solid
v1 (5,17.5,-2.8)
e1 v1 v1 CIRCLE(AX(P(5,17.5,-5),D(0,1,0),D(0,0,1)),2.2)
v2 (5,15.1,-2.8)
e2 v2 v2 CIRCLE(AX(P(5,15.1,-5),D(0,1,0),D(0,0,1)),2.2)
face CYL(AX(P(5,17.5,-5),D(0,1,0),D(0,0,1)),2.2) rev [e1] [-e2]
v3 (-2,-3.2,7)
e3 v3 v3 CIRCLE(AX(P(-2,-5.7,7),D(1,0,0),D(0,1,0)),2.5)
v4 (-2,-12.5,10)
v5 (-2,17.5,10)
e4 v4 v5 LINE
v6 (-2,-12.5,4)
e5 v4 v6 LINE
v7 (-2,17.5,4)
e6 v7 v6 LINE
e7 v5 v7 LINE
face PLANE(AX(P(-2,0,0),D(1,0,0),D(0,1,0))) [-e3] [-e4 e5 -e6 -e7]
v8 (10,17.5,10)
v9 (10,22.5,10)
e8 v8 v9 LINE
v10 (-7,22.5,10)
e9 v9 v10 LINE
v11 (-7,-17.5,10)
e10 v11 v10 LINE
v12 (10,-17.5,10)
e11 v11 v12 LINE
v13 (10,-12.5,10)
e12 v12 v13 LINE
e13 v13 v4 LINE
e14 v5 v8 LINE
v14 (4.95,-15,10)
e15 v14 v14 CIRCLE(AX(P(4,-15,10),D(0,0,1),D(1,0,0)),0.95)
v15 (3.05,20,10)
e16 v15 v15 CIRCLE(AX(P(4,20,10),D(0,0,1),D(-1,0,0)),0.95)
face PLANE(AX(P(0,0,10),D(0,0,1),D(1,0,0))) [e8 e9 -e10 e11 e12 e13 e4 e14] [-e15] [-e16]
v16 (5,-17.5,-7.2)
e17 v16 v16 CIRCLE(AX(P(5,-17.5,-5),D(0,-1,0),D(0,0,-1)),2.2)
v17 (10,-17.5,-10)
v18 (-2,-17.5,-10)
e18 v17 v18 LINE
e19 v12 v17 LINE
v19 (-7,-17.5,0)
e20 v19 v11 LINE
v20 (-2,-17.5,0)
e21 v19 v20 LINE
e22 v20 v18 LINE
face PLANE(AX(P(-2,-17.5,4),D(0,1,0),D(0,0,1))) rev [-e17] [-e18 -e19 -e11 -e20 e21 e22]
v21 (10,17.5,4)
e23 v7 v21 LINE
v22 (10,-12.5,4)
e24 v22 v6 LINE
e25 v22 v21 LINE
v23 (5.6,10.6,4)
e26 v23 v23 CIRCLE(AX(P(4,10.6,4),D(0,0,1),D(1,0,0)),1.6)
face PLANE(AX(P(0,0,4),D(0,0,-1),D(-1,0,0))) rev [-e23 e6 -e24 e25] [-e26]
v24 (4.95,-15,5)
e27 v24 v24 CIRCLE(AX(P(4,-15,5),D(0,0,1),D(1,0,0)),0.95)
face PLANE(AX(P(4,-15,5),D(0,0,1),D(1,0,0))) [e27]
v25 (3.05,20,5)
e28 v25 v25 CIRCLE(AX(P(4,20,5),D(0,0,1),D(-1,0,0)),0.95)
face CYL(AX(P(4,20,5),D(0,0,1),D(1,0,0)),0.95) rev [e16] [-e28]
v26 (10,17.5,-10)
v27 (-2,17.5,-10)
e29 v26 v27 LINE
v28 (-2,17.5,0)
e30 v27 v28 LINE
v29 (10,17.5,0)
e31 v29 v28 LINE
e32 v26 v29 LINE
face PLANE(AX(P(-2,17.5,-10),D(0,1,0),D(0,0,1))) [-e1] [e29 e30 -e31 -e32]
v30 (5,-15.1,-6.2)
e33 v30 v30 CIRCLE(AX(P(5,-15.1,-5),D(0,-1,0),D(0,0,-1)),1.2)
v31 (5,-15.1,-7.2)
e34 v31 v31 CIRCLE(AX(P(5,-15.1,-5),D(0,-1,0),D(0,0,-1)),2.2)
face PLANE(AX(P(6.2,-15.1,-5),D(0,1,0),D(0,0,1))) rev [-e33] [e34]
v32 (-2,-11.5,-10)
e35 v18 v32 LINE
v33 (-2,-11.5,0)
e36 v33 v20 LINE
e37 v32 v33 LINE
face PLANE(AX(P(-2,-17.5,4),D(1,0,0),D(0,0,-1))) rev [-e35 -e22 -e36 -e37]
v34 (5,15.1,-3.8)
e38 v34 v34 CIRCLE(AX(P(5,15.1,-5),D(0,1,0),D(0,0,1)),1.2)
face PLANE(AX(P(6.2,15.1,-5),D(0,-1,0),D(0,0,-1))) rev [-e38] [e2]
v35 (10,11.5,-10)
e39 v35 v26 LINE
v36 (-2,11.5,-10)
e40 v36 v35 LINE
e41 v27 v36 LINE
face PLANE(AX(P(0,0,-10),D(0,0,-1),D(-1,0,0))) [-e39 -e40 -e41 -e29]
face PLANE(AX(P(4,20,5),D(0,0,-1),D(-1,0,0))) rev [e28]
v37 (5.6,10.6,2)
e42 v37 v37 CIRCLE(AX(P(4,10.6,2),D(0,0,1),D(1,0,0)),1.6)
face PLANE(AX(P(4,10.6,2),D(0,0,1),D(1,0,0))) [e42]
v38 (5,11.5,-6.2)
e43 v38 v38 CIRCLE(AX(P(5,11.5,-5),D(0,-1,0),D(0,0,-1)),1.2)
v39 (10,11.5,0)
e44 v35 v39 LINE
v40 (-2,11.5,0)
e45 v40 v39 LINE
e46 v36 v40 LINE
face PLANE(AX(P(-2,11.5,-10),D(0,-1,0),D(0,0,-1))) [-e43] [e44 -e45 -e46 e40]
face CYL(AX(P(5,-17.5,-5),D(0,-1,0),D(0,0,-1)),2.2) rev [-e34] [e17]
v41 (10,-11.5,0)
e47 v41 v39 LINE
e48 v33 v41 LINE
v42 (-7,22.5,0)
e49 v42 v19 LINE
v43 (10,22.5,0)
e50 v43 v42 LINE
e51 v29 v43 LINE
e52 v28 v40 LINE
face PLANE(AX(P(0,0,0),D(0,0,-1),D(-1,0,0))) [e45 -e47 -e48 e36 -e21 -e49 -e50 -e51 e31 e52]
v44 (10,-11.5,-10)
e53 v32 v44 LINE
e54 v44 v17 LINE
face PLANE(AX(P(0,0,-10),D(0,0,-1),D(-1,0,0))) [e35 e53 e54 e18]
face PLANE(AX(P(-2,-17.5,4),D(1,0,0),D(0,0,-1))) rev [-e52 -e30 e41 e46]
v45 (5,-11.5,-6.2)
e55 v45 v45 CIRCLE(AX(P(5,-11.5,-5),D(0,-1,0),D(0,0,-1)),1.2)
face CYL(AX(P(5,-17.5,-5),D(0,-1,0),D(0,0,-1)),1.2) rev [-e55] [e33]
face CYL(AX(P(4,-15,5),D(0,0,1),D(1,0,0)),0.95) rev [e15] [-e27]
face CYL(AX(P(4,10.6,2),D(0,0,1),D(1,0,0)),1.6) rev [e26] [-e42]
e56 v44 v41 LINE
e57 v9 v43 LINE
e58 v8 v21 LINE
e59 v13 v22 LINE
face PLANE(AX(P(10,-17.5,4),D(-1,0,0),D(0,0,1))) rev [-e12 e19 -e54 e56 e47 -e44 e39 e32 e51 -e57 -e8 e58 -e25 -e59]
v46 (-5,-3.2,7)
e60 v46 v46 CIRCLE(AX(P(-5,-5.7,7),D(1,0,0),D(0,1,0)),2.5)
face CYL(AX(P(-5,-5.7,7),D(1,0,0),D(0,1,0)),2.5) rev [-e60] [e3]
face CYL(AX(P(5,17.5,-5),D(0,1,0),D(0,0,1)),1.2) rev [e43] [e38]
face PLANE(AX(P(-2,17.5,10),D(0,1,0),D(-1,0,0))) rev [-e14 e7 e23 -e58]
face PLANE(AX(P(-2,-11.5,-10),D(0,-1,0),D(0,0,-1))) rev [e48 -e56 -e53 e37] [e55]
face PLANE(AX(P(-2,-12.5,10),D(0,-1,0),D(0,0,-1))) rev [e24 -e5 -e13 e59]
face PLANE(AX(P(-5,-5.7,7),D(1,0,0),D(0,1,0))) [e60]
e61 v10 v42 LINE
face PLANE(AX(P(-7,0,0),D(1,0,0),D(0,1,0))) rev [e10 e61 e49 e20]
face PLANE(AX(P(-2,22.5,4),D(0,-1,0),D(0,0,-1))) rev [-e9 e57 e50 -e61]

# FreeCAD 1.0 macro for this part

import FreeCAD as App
import Part
import Sketcher
from FreeCAD import Vector


def add_polygon(sketch, points):
    """Adds a closed chain of lines whose ends are joined by coincident constraints."""
    first, n = sketch.GeometryCount, len(points)
    for a, b in zip(points, points[1:] + points[:1]):
        sketch.addGeometry(Part.LineSegment(App.Vector(*a, 0), App.Vector(*b, 0)), False)
    for i in range(n):
        sketch.addConstraint(Sketcher.Constraint("Coincident", first + i, 2, first + (i + 1) % n, 1))

doc = App.newDocument("Part")
body = doc.addObject("PartDesign::Body", "Body")

# Sketch on XY plane
sketch1 = body.newObject("Sketcher::SketchObject", "Sketch")
sketch1.AttachmentSupport = (doc.getObject("XY_Plane"), [""])
sketch1.MapMode = "FlatFace"
add_polygon(sketch1, [(-2, 22), (-2, -18), (10, -18), (10, 22)])  # lines 0-3
sketch1.addConstraint([
    Sketcher.Constraint("Vertical", 0),
    Sketcher.Constraint("Horizontal", 1),
    Sketcher.Constraint("Vertical", 2),
    Sketcher.Constraint("Horizontal", 3),
    Sketcher.Constraint("DistanceX", 1, 1, 1, 2, 12.0),
    Sketcher.Constraint("DistanceY", 0, 2, 0, 1, 40.0),
    Sketcher.Constraint("DistanceX", 0, 2, -1, 1, 2.0),
    Sketcher.Constraint("DistanceY", 0, 2, -1, 1, 17.5),
])
pad1 = body.newObject("PartDesign::Pad", "Pad")
pad1.Profile = sketch1
pad1.Length = 4

# Sketch on XY plane
sketch2 = body.newObject("Sketcher::SketchObject", "Sketch001")
sketch2.AttachmentSupport = (doc.getObject("XY_Plane"), [""])
sketch2.MapMode = "FlatFace"
add_polygon(sketch2, [(10, -12), (10, -18), (-2, -18), (-2, -12)])  # lines 0-3
sketch2.addConstraint([
    Sketcher.Constraint("Vertical", 0),
    Sketcher.Constraint("Horizontal", 1),
    Sketcher.Constraint("Vertical", 2),
    Sketcher.Constraint("Horizontal", 3),
    Sketcher.Constraint("DistanceX", 1, 2, 1, 1, 12.0),
    Sketcher.Constraint("DistanceY", 0, 2, 0, 1, 6.0),
    Sketcher.Constraint("DistanceX", -1, 1, 0, 2, 10.0),
    Sketcher.Constraint("DistanceY", 0, 2, -1, 1, 17.5),
])
pad2 = body.newObject("PartDesign::Pad", "Pad001")
pad2.Profile = sketch2
pad2.Length = 10
pad2.Reversed = True
doc.recompute()

mirrored = body.newObject("PartDesign::Mirrored", "Mirrored")
mirrored.Originals = [pad2]
mirrored.MirrorPlane = (doc.getObject("XZ_Plane"), [""])
body.Tip = mirrored

# Sketch on XY plane
sketch3 = body.newObject("Sketcher::SketchObject", "Sketch002")
sketch3.AttachmentSupport = (doc.getObject("XY_Plane"), [""])
sketch3.MapMode = "FlatFace"
sketch3.AttachmentOffset = App.Placement(Vector(0, 0, 4), App.Rotation())
sketch3.addGeometry(Part.Circle(Vector(4, 10.6, 0), Vector(0, 0, 1), 1.6), False)
sketch3.addConstraint([
    Sketcher.Constraint("Diameter", 0, 3.2),
    Sketcher.Constraint("DistanceX", -1, 1, 0, 3, 4.0),
    Sketcher.Constraint("DistanceY", -1, 1, 0, 3, 10.6),
])
pocket1 = body.newObject("PartDesign::Pocket", "Pocket")
pocket1.Profile = sketch3
pocket1.Length = 2

# Sketch on XY plane
sketch4 = body.newObject("Sketcher::SketchObject", "Sketch003")
sketch4.AttachmentSupport = (doc.getObject("XY_Plane"), [""])
sketch4.MapMode = "FlatFace"
sketch4.AttachmentOffset = App.Placement(Vector(0, 0, 4), App.Rotation())
add_polygon(sketch4, [(-2, 22), (-2, 18), (10, 18), (10, 22)])  # lines 0-3
add_polygon(sketch4, [(-2, -12), (-2, -18), (10, -18), (10, -12)])  # lines 4-7
sketch4.addConstraint([
    Sketcher.Constraint("Vertical", 0),
    Sketcher.Constraint("Horizontal", 1),
    Sketcher.Constraint("Vertical", 2),
    Sketcher.Constraint("Horizontal", 3),
    Sketcher.Constraint("Vertical", 4),
    Sketcher.Constraint("Horizontal", 5),
    Sketcher.Constraint("Vertical", 6),
    Sketcher.Constraint("Horizontal", 7),
    Sketcher.Constraint("Symmetric", 0, 2, 4, 2, -1),
    Sketcher.Constraint("Vertical", 2, 2, 5, 2),
    Sketcher.Constraint("Equal", 2, 4),
    Sketcher.Constraint("DistanceX", 1, 1, 1, 2, 12.0),
    Sketcher.Constraint("DistanceY", 0, 2, 0, 1, 5.0),
    Sketcher.Constraint("DistanceX", 0, 2, -1, 1, 2.0),
    Sketcher.Constraint("DistanceY", 4, 2, 0, 2, 35.0),
])
pad3 = body.newObject("PartDesign::Pad", "Pad002")
pad3.Profile = sketch4
pad3.Length = 6

# Sketch on XY plane
sketch5 = body.newObject("Sketcher::SketchObject", "Sketch004")
sketch5.AttachmentSupport = (doc.getObject("XY_Plane"), [""])
sketch5.MapMode = "FlatFace"
sketch5.AttachmentOffset = App.Placement(Vector(0, 0, 10), App.Rotation())
sketch5.addGeometry([
    Part.Circle(Vector(4, -15, 0), Vector(0, 0, 1), 0.9),
    Part.Circle(Vector(4, 20, 0), Vector(0, 0, 1), 0.9),
], False)
sketch5.addConstraint([
    Sketcher.Constraint("Equal", 0, 1),
    Sketcher.Constraint("Vertical", 0, 3, 1, 3),
    Sketcher.Constraint("Diameter", 0, 1.9),
    Sketcher.Constraint("DistanceX", -1, 1, 0, 3, 4.0),
    Sketcher.Constraint("DistanceY", 0, 3, -1, 1, 15.0),
    Sketcher.Constraint("DistanceY", -1, 1, 1, 3, 20.0),
])
pocket2 = body.newObject("PartDesign::Pocket", "Pocket001")
pocket2.Profile = sketch5
pocket2.Length = 5

# Sketch on YZ plane
sketch6 = body.newObject("Sketcher::SketchObject", "Sketch005")
sketch6.AttachmentSupport = (doc.getObject("YZ_Plane"), [""])
sketch6.MapMode = "FlatFace"
sketch6.AttachmentOffset = App.Placement(Vector(0, 0, -2), App.Rotation())
add_polygon(sketch6, [(22, 0), (-18, 0), (-18, 10), (22, 10)])  # lines 0-3
sketch6.addConstraint([
    Sketcher.Constraint("Horizontal", 0),
    Sketcher.Constraint("Vertical", 1),
    Sketcher.Constraint("Horizontal", 2),
    Sketcher.Constraint("Vertical", 3),
    Sketcher.Constraint("PointOnObject", 0, 2, -1),
    Sketcher.Constraint("DistanceX", 0, 2, 0, 1, 40.0),
    Sketcher.Constraint("DistanceY", 1, 1, 1, 2, 10.0),
    Sketcher.Constraint("DistanceX", 0, 2, -1, 1, 17.5),
])
pad4 = body.newObject("PartDesign::Pad", "Pad003")
pad4.Profile = sketch6
pad4.Length = 5
pad4.Reversed = True

# Sketch on YZ plane
sketch7 = body.newObject("Sketcher::SketchObject", "Sketch006")
sketch7.AttachmentSupport = (doc.getObject("YZ_Plane"), [""])
sketch7.MapMode = "FlatFace"
sketch7.AttachmentOffset = App.Placement(Vector(0, 0, -2), App.Rotation())
sketch7.addGeometry(Part.Circle(Vector(-5.7, 7, 0), Vector(0, 0, 1), 2.5), False)
sketch7.addConstraint([
    Sketcher.Constraint("Diameter", 0, 5.0),
    Sketcher.Constraint("DistanceY", -1, 1, 0, 3, 7.0),
    Sketcher.Constraint("DistanceX", 0, 3, -1, 1, 5.7),
])
pocket3 = body.newObject("PartDesign::Pocket", "Pocket002")
pocket3.Profile = sketch7
pocket3.Length = 3

# Sketch on XZ plane
sketch8 = body.newObject("Sketcher::SketchObject", "Sketch007")
sketch8.AttachmentSupport = (doc.getObject("XZ_Plane"), [""])
sketch8.MapMode = "FlatFace"
sketch8.AttachmentOffset = App.Placement(Vector(0, 0, 17.5), App.Rotation())
sketch8.addGeometry(Part.Circle(Vector(5, -5, 0), Vector(0, 0, 1), 1.2), False)
sketch8.addConstraint([
    Sketcher.Constraint("Diameter", 0, 2.4),
    Sketcher.Constraint("DistanceX", -1, 1, 0, 3, 5.0),
    Sketcher.Constraint("DistanceY", 0, 3, -1, 1, 5.0),
])
doc.recompute()
hole = body.newObject("PartDesign::Hole", "Hole")
hole.Profile = sketch8
hole.ThreadType = "None"
hole.Diameter = 2.4
hole.DepthType = "Dimension"
hole.Depth = 6
hole.DrillPoint = "Flat"
hole.HoleCutType = "Counterbore"
hole.HoleCutDiameter = 4.4
hole.HoleCutDepth = 2.4
doc.recompute()

mirrored2 = body.newObject("PartDesign::Mirrored", "Mirrored001")
mirrored2.Originals = [hole]
mirrored2.MirrorPlane = (doc.getObject("XZ_Plane"), [""])
body.Tip = mirrored2

doc.recompute()
